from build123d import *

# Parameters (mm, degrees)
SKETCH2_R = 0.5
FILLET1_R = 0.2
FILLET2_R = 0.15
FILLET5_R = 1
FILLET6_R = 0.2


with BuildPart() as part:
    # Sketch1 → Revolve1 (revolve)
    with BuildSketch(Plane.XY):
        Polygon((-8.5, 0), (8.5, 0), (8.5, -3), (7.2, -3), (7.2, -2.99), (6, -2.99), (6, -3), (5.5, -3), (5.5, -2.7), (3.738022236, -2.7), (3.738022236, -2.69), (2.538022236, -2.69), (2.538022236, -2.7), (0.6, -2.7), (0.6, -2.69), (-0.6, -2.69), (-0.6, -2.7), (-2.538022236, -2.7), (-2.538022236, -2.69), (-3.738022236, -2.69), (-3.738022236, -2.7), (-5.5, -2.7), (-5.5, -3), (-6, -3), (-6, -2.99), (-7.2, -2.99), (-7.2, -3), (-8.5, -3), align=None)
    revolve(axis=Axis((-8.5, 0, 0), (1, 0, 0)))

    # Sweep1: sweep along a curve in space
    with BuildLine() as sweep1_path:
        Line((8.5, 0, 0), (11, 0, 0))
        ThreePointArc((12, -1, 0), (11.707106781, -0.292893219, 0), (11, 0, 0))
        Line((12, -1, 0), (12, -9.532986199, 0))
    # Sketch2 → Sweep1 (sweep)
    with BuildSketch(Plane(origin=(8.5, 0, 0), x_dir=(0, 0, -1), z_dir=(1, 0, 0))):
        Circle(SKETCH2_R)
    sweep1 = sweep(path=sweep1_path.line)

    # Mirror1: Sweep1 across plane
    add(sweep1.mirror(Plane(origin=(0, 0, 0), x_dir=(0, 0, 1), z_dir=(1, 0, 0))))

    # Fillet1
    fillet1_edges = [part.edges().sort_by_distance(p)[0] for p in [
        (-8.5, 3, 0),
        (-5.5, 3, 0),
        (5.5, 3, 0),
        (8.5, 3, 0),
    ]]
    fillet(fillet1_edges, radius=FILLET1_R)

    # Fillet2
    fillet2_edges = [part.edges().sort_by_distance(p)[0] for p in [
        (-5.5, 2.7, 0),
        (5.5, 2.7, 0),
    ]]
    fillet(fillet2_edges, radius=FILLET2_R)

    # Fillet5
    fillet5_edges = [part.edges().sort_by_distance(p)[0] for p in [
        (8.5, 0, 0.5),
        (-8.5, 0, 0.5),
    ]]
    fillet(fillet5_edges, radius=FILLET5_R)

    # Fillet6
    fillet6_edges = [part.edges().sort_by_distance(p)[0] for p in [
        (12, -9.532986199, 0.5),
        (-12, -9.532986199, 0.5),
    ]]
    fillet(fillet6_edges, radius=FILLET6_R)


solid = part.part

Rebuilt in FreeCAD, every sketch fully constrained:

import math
import FreeCAD as App
import Part
import Sketcher

V = App.Vector
Q = App.Units.Quantity


def edges_at(feature, points):
    """Names of the edges that pass closest to the given points."""
    edges = feature.Shape.Edges
    near = lambda p: min(range(len(edges)), key=lambda i: edges[i].distToShape(Part.Vertex(*p))[0])
    return sorted({f"Edge{near(p) + 1}" for p in points})

doc = App.newDocument("Part")
body = doc.addObject("PartDesign::Body", "Body")

# Sketch on XY plane
sketch1 = body.newObject("Sketcher::SketchObject", "Sketch")
sketch1.AttachmentSupport = (doc.getObject("XY_Plane"), [""])
sketch1.MapMode = "FlatFace"
sketch1.addGeometry(Part.LineSegment(V(8.5, 0, 0), V(-8.5, 0, 0)), False)
sketch1.addGeometry(Part.LineSegment(V(-8.5, 0, 0), V(-8.5, -3, 0)), False)
sketch1.addGeometry(Part.LineSegment(V(-8.5, -3, 0), V(-7.2, -3, 0)), False)
sketch1.addGeometry(Part.LineSegment(V(-7.2, -3, 0), V(-7.2, -2.99, 0)), False)
sketch1.addGeometry(Part.LineSegment(V(-7.2, -2.99, 0), V(-6, -2.99, 0)), False)
sketch1.addGeometry(Part.LineSegment(V(-6, -2.99, 0), V(-6, -3, 0)), False)
sketch1.addGeometry(Part.LineSegment(V(-6, -3, 0), V(-5.5, -3, 0)), False)
sketch1.addGeometry(Part.LineSegment(V(-5.5, -3, 0), V(-5.5, -2.7, 0)), False)
sketch1.addGeometry(Part.LineSegment(V(-5.5, -2.7, 0), V(-3.738, -2.7, 0)), False)
sketch1.addGeometry(Part.LineSegment(V(-3.738, -2.7, 0), V(-3.738, -2.69, 0)), False)
sketch1.addGeometry(Part.LineSegment(V(-3.738, -2.69, 0), V(-2.538, -2.69, 0)), False)
sketch1.addGeometry(Part.LineSegment(V(-2.538, -2.69, 0), V(-2.538, -2.7, 0)), False)
sketch1.addGeometry(Part.LineSegment(V(-2.538, -2.7, 0), V(-0.6, -2.7, 0)), False)
sketch1.addGeometry(Part.LineSegment(V(-0.6, -2.7, 0), V(-0.6, -2.69, 0)), False)
sketch1.addGeometry(Part.LineSegment(V(-0.6, -2.69, 0), V(0.6, -2.69, 0)), False)
sketch1.addGeometry(Part.LineSegment(V(0.6, -2.69, 0), V(0.6, -2.7, 0)), False)
sketch1.addGeometry(Part.LineSegment(V(0.6, -2.7, 0), V(2.538, -2.7, 0)), False)
sketch1.addGeometry(Part.LineSegment(V(2.538, -2.7, 0), V(2.538, -2.69, 0)), False)
sketch1.addGeometry(Part.LineSegment(V(2.538, -2.69, 0), V(3.738, -2.69, 0)), False)
sketch1.addGeometry(Part.LineSegment(V(3.738, -2.69, 0), V(3.738, -2.7, 0)), False)
sketch1.addGeometry(Part.LineSegment(V(3.738, -2.7, 0), V(5.5, -2.7, 0)), False)
sketch1.addGeometry(Part.LineSegment(V(5.5, -2.7, 0), V(5.5, -3, 0)), False)
sketch1.addGeometry(Part.LineSegment(V(5.5, -3, 0), V(6, -3, 0)), False)
sketch1.addGeometry(Part.LineSegment(V(6, -3, 0), V(6, -2.99, 0)), False)
sketch1.addGeometry(Part.LineSegment(V(6, -2.99, 0), V(7.2, -2.99, 0)), False)
sketch1.addGeometry(Part.LineSegment(V(7.2, -2.99, 0), V(7.2, -3, 0)), False)
sketch1.addGeometry(Part.LineSegment(V(7.2, -3, 0), V(8.5, -3, 0)), False)
sketch1.addGeometry(Part.LineSegment(V(8.5, -3, 0), V(8.5, 0, 0)), False)
sketch1.addConstraint(Sketcher.Constraint("Coincident", 0, 2, 1, 1))
sketch1.addConstraint(Sketcher.Constraint("Coincident", 1, 2, 2, 1))
sketch1.addConstraint(Sketcher.Constraint("Coincident", 2, 2, 3, 1))
sketch1.addConstraint(Sketcher.Constraint("Coincident", 3, 2, 4, 1))
sketch1.addConstraint(Sketcher.Constraint("Coincident", 4, 2, 5, 1))
sketch1.addConstraint(Sketcher.Constraint("Coincident", 5, 2, 6, 1))
sketch1.addConstraint(Sketcher.Constraint("Coincident", 6, 2, 7, 1))
sketch1.addConstraint(Sketcher.Constraint("Coincident", 7, 2, 8, 1))
sketch1.addConstraint(Sketcher.Constraint("Coincident", 8, 2, 9, 1))
sketch1.addConstraint(Sketcher.Constraint("Coincident", 9, 2, 10, 1))
sketch1.addConstraint(Sketcher.Constraint("Coincident", 10, 2, 11, 1))
sketch1.addConstraint(Sketcher.Constraint("Coincident", 11, 2, 12, 1))
sketch1.addConstraint(Sketcher.Constraint("Coincident", 12, 2, 13, 1))
sketch1.addConstraint(Sketcher.Constraint("Coincident", 13, 2, 14, 1))
sketch1.addConstraint(Sketcher.Constraint("Coincident", 14, 2, 15, 1))
sketch1.addConstraint(Sketcher.Constraint("Coincident", 15, 2, 16, 1))
sketch1.addConstraint(Sketcher.Constraint("Coincident", 16, 2, 17, 1))
sketch1.addConstraint(Sketcher.Constraint("Coincident", 17, 2, 18, 1))
sketch1.addConstraint(Sketcher.Constraint("Coincident", 18, 2, 19, 1))
sketch1.addConstraint(Sketcher.Constraint("Coincident", 19, 2, 20, 1))
sketch1.addConstraint(Sketcher.Constraint("Coincident", 20, 2, 21, 1))
sketch1.addConstraint(Sketcher.Constraint("Coincident", 21, 2, 22, 1))
sketch1.addConstraint(Sketcher.Constraint("Coincident", 22, 2, 23, 1))
sketch1.addConstraint(Sketcher.Constraint("Coincident", 23, 2, 24, 1))
sketch1.addConstraint(Sketcher.Constraint("Coincident", 24, 2, 25, 1))
sketch1.addConstraint(Sketcher.Constraint("Coincident", 25, 2, 26, 1))
sketch1.addConstraint(Sketcher.Constraint("Coincident", 26, 2, 27, 1))
sketch1.addConstraint(Sketcher.Constraint("Coincident", 27, 2, 0, 1))
sketch1.addConstraint(Sketcher.Constraint("Horizontal", 0))
sketch1.addConstraint(Sketcher.Constraint("Vertical", 1))
sketch1.addConstraint(Sketcher.Constraint("Horizontal", 2))
sketch1.addConstraint(Sketcher.Constraint("Vertical", 3))
sketch1.addConstraint(Sketcher.Constraint("Horizontal", 4))
sketch1.addConstraint(Sketcher.Constraint("Vertical", 5))
sketch1.addConstraint(Sketcher.Constraint("Horizontal", 6))
sketch1.addConstraint(Sketcher.Constraint("Vertical", 7))
sketch1.addConstraint(Sketcher.Constraint("Horizontal", 8))
sketch1.addConstraint(Sketcher.Constraint("Vertical", 9))
sketch1.addConstraint(Sketcher.Constraint("Horizontal", 10))
sketch1.addConstraint(Sketcher.Constraint("Vertical", 11))
sketch1.addConstraint(Sketcher.Constraint("Horizontal", 12))
sketch1.addConstraint(Sketcher.Constraint("Vertical", 13))
sketch1.addConstraint(Sketcher.Constraint("Horizontal", 14))
sketch1.addConstraint(Sketcher.Constraint("Vertical", 15))
sketch1.addConstraint(Sketcher.Constraint("Horizontal", 16))
sketch1.addConstraint(Sketcher.Constraint("Vertical", 17))
sketch1.addConstraint(Sketcher.Constraint("Horizontal", 18))
sketch1.addConstraint(Sketcher.Constraint("Vertical", 19))
sketch1.addConstraint(Sketcher.Constraint("Horizontal", 20))
sketch1.addConstraint(Sketcher.Constraint("Vertical", 21))
sketch1.addConstraint(Sketcher.Constraint("Horizontal", 22))
sketch1.addConstraint(Sketcher.Constraint("Vertical", 23))
sketch1.addConstraint(Sketcher.Constraint("Horizontal", 24))
sketch1.addConstraint(Sketcher.Constraint("Vertical", 25))
sketch1.addConstraint(Sketcher.Constraint("Horizontal", 26))
sketch1.addConstraint(Sketcher.Constraint("Vertical", 27))
sketch1.addConstraint(Sketcher.Constraint("Symmetric", 0, 2, 27, 2, -1, 1))
sketch1.addConstraint(Sketcher.Constraint("Symmetric", 12, 2, 15, 2, -2))
sketch1.addConstraint(Sketcher.Constraint("Symmetric", 10, 2, 17, 2, -2))
sketch1.addConstraint(Sketcher.Constraint("Symmetric", 8, 2, 19, 2, -2))
sketch1.addConstraint(Sketcher.Constraint("Symmetric", 6, 2, 21, 2, -2))
sketch1.addConstraint(Sketcher.Constraint("Symmetric", 4, 2, 23, 2, -2))
sketch1.addConstraint(Sketcher.Constraint("Symmetric", 2, 2, 25, 2, -2))
sketch1.addConstraint(Sketcher.Constraint("Horizontal", 2, 2, 5, 2))
sketch1.addConstraint(Sketcher.Constraint("Horizontal", 8, 2, 11, 2))
sketch1.addConstraint(Sketcher.Constraint("Horizontal", 10, 2, 13, 2))
sketch1.addConstraint(Sketcher.Constraint("Equal", 4, 10))
sketch1.addConstraint(Sketcher.Constraint("Equal", 10, 14))
sketch1.addConstraint(Sketcher.Constraint("Equal", 5, 9))
sketch1.addConstraint(Sketcher.Constraint("DistanceX", 0, 2, 0, 1, Q("17 mm")))
sketch1.addConstraint(Sketcher.Constraint("DistanceY", 1, 2, 1, 1, Q("3 mm")))
sketch1.addConstraint(Sketcher.Constraint("DistanceX", 2, 1, 2, 2, Q("1.3 mm")))
sketch1.addConstraint(Sketcher.Constraint("DistanceX", 4, 1, 4, 2, Q("1.2 mm")))
sketch1.addConstraint(Sketcher.Constraint("DistanceX", 6, 1, 6, 2, Q("0.5 mm")))
sketch1.addConstraint(Sketcher.Constraint("DistanceY", 7, 1, 7, 2, Q("0.3 mm")))
sketch1.addConstraint(Sketcher.Constraint("DistanceY", 3, 1, 3, 2, Q("0.01 mm")))
sketch1.addConstraint(Sketcher.Constraint("DistanceX", 8, 1, 8, 2, Q("1.761978 mm")))
revolution = body.newObject("PartDesign::Revolution", "Revolution")
revolution.Profile = sketch1
revolution.ReferenceAxis = (sketch1, ["H_Axis"])
revolution.Angle = 360

# Sketch on YZ plane
sketch2 = body.newObject("Sketcher::SketchObject", "Sketch001")
sketch2.AttachmentSupport = (doc.getObject("YZ_Plane"), [""])
sketch2.MapMode = "FlatFace"
sketch2.AttachmentOffset = App.Placement(V(0, 0, 8.5), App.Rotation())
sketch2.addGeometry(Part.Circle(V(0, 0, 0), V(0, 0, 1), 0.5), False)
sketch2.addConstraint(Sketcher.Constraint("Coincident", 0, 3, -1, 1))
sketch2.addConstraint(Sketcher.Constraint("Diameter", 0, Q("1 mm")))

# Sketch on XY plane
sketch3 = body.newObject("Sketcher::SketchObject", "Sketch002")
sketch3.AttachmentSupport = (doc.getObject("XY_Plane"), [""])
sketch3.MapMode = "FlatFace"
sketch3.addGeometry(Part.LineSegment(V(8.5, 0, 0), V(11, 0, 0)), False)
sketch3.addGeometry(Part.ArcOfCircle(Part.Circle(V(11, -1, 0), V(0, 0, 1), 1), math.radians(0), math.radians(90)), False)
sketch3.addGeometry(Part.LineSegment(V(12, -1, 0), V(12, -9.5, 0)), False)
sketch3.addConstraint(Sketcher.Constraint("Tangent", 0, 2, 1, 2))
sketch3.addConstraint(Sketcher.Constraint("Tangent", 1, 1, 2, 1))
sketch3.addConstraint(Sketcher.Constraint("Horizontal", 0))
sketch3.addConstraint(Sketcher.Constraint("Vertical", 2))
sketch3.addConstraint(Sketcher.Constraint("PointOnObject", 0, 1, -1))
sketch3.addConstraint(Sketcher.Constraint("Radius", 1, Q("1 mm")))
sketch3.addConstraint(Sketcher.Constraint("DistanceX", 0, 1, 0, 2, Q("2.5 mm")))
sketch3.addConstraint(Sketcher.Constraint("DistanceX", -1, 1, 1, 3, Q("11 mm")))
sketch3.addConstraint(Sketcher.Constraint("DistanceY", 2, 2, 2, 1, Q("8.532986 mm")))
doc.recompute()

additivepipe = body.newObject("PartDesign::AdditivePipe", "AdditivePipe")
additivepipe.Profile = sketch2
additivepipe.Spine = (sketch3, ["Edge1", "Edge2", "Edge3"])
doc.recompute()

mirrored = body.newObject("PartDesign::Mirrored", "Mirrored")
mirrored.Originals = [additivepipe]
mirrored.MirrorPlane = (doc.getObject("YZ_Plane"), [""])
body.Tip = mirrored
doc.recompute()

fillet = body.newObject("PartDesign::Fillet", "Fillet")
fillet.Base = (mirrored, edges_at(mirrored, [
    (-8.5, 3, 0),
    (-5.5, 3, 0),
    (5.5, 3, 0),
    (8.5, 3, 0),
]))
fillet.Radius = 0.2
doc.recompute()

fillet2 = body.newObject("PartDesign::Fillet", "Fillet001")
fillet2.Base = (fillet, edges_at(fillet, [(-5.5, 2.7, 0), (5.5, 2.7, 0)]))
fillet2.Radius = 0.15
doc.recompute()

fillet3 = body.newObject("PartDesign::Fillet", "Fillet002")
fillet3.Base = (fillet2, edges_at(fillet2, [(8.5, 0, 0.5), (-8.5, 0, 0.5)]))
fillet3.Radius = 1
doc.recompute()

fillet4 = body.newObject("PartDesign::Fillet", "Fillet003")
fillet4.Base = (fillet3, edges_at(fillet3, [(12, -9.533, 0.5), (-12, -9.533, 0.5)]))
fillet4.Radius = 0.2

doc.recompute()
